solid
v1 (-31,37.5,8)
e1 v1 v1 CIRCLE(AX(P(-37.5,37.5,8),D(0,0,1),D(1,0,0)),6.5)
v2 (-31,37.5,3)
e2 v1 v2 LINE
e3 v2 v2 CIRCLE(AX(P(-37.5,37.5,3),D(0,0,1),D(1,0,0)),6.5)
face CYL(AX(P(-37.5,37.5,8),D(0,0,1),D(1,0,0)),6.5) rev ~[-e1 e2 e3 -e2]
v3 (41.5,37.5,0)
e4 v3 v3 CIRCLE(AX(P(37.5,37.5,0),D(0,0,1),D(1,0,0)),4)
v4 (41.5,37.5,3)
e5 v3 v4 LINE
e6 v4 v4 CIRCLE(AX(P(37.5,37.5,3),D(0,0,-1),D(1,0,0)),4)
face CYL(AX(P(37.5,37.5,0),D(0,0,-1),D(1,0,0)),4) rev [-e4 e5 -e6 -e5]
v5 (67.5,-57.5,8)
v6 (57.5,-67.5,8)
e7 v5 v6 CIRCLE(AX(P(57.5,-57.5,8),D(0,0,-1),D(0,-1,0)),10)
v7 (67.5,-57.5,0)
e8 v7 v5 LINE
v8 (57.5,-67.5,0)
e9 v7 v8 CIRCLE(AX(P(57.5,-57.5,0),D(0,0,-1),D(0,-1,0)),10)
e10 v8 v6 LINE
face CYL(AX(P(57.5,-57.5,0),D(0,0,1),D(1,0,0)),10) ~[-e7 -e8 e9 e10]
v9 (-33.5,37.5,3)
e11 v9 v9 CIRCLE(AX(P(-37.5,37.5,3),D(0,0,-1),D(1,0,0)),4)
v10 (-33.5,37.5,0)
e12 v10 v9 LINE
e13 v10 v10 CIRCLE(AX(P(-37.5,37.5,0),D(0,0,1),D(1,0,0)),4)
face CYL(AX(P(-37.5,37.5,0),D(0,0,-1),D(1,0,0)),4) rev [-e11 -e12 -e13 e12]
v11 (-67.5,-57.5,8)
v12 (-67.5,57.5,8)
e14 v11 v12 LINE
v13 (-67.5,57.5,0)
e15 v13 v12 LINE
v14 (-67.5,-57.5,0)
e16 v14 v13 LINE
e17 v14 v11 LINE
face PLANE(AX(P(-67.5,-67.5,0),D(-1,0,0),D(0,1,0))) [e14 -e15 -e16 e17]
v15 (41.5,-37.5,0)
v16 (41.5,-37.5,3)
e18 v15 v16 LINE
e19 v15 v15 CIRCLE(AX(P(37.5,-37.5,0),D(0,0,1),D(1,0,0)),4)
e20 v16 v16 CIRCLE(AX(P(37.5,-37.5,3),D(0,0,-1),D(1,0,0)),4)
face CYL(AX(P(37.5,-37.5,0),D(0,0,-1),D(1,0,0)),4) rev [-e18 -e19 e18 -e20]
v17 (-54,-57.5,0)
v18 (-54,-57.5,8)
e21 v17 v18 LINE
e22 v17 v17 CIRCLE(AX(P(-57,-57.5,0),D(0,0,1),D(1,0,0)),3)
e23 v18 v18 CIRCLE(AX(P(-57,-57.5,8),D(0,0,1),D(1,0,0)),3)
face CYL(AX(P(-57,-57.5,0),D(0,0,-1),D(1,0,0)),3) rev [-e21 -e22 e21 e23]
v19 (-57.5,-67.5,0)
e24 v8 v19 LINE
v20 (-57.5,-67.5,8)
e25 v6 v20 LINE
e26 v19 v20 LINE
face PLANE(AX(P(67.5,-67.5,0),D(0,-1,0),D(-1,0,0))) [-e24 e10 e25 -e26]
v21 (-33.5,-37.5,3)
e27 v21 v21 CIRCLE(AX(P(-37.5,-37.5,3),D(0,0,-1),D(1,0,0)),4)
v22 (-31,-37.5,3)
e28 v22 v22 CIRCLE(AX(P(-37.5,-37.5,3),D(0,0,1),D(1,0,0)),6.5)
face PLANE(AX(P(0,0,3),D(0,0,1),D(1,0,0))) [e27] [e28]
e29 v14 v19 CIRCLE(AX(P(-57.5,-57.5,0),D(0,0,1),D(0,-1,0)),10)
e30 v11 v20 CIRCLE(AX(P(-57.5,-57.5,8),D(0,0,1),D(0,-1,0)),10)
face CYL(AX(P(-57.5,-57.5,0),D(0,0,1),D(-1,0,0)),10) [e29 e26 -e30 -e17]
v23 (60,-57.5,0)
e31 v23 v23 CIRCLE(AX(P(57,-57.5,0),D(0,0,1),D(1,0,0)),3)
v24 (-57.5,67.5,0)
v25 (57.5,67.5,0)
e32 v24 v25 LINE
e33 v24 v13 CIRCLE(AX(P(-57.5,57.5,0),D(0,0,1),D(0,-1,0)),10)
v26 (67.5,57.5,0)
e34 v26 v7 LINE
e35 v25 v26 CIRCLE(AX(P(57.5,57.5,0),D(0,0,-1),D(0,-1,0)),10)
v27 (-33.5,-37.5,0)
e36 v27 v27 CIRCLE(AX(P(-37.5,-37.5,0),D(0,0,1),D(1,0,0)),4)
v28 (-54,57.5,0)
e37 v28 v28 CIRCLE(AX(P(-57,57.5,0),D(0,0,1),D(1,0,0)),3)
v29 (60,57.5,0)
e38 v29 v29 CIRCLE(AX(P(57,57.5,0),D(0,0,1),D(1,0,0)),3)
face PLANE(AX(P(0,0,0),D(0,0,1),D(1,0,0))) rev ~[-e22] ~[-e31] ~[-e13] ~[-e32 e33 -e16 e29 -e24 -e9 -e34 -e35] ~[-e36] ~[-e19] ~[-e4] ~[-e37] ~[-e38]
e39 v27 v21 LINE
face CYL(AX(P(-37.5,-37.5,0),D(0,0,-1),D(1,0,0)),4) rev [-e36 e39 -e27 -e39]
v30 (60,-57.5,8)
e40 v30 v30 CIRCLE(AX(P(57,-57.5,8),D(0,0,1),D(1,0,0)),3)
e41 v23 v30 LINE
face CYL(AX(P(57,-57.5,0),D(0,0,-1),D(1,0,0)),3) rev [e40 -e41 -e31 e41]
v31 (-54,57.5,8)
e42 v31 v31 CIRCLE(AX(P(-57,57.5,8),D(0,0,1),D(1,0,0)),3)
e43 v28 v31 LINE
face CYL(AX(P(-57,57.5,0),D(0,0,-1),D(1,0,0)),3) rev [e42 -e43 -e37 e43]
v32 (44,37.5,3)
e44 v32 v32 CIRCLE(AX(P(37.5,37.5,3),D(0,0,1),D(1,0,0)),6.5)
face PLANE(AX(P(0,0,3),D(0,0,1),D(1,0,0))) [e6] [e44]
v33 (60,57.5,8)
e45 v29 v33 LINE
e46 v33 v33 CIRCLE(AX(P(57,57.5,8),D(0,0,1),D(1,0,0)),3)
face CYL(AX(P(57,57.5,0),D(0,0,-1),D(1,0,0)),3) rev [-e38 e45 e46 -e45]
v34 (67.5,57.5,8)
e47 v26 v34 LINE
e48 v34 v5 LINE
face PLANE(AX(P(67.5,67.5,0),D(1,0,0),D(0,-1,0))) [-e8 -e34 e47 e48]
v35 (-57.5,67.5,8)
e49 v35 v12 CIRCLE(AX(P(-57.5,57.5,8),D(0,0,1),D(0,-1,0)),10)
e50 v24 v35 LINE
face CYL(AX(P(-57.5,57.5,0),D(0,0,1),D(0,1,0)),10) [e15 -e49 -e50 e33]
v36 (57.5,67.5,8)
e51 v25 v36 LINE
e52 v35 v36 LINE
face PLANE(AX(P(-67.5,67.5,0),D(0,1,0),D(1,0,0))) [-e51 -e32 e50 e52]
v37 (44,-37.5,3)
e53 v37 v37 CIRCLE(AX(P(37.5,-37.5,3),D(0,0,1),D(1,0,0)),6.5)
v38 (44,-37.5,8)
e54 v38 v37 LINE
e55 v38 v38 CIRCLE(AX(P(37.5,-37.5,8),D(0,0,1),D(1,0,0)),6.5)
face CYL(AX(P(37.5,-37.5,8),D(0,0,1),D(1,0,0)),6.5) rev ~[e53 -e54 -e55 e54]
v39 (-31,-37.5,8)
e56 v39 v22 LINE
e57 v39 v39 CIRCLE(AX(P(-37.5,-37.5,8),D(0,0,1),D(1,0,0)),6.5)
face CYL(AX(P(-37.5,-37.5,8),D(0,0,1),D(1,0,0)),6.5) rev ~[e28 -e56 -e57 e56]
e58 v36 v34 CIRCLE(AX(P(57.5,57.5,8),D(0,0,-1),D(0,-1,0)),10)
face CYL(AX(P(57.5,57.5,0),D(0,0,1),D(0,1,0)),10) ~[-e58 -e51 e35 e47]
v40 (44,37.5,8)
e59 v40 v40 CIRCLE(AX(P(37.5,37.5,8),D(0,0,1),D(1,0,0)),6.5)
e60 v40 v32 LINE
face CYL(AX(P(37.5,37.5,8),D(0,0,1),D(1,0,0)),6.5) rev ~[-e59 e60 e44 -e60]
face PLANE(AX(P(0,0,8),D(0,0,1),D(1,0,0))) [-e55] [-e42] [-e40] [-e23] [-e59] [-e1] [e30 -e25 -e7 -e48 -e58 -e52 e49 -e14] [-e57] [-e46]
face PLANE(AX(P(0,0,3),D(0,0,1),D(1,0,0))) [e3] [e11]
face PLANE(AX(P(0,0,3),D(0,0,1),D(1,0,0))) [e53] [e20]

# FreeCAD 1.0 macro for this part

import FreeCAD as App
import Part
import Sketcher


def edges_at(feature, points):
    """Names of the edges that pass closest to the given points."""
    edges = feature.Shape.Edges
    near = lambda p: min(range(len(edges)), key=lambda i: edges[i].distToShape(Part.Vertex(*p))[0])
    return sorted({f"Edge{near(p) + 1}" for p in points})


def add_polygon(sketch, points):
    """Adds a closed chain of lines whose ends are joined by coincident constraints."""
    first, n = sketch.GeometryCount, len(points)
    for a, b in zip(points, points[1:] + points[:1]):
        sketch.addGeometry(Part.LineSegment(App.Vector(*a, 0), App.Vector(*b, 0)), False)
    for i in range(n):
        sketch.addConstraint(Sketcher.Constraint("Coincident", first + i, 2, first + (i + 1) % n, 1))

doc = App.newDocument("Part")
body = doc.addObject("PartDesign::Body", "Body")

# Sketch on XY plane
sketch1 = body.newObject("Sketcher::SketchObject", "Sketch")
sketch1.AttachmentSupport = (doc.getObject("XY_Plane"), [""])
sketch1.MapMode = "FlatFace"
add_polygon(sketch1, [(67.5, 67.5), (-67.5, 67.5), (-67.5, -67.5), (67.5, -67.5)])  # lines 0-3
sketch1.addGeometry(Part.Circle(App.Vector(-57, -57.5, 0), App.Vector(0, 0, 1), 3), False)  # 4
sketch1.addGeometry(Part.Circle(App.Vector(-37.5, -37.5, 0), App.Vector(0, 0, 1), 4), False)  # 5
sketch1.addGeometry(Part.Circle(App.Vector(57, -57.5, 0), App.Vector(0, 0, 1), 3), False)  # 6
sketch1.addGeometry(Part.Circle(App.Vector(37.5, -37.5, 0), App.Vector(0, 0, 1), 4), False)  # 7
sketch1.addGeometry(Part.Circle(App.Vector(-37.5, 37.5, 0), App.Vector(0, 0, 1), 4), False)  # 8
sketch1.addGeometry(Part.Circle(App.Vector(-57, 57.5, 0), App.Vector(0, 0, 1), 3), False)  # 9
sketch1.addGeometry(Part.Circle(App.Vector(37.5, 37.5, 0), App.Vector(0, 0, 1), 4), False)  # 10
sketch1.addGeometry(Part.Circle(App.Vector(57, 57.5, 0), App.Vector(0, 0, 1), 3), False)  # 11
sketch1.addConstraint([
    Sketcher.Constraint("Horizontal", 0),
    Sketcher.Constraint("Vertical", 1),
    Sketcher.Constraint("Horizontal", 2),
    Sketcher.Constraint("Vertical", 3),
    Sketcher.Constraint("Equal", 4, 6),
    Sketcher.Constraint("Equal", 5, 7),
    Sketcher.Constraint("Equal", 7, 8),
    Sketcher.Constraint("Equal", 6, 9),
    Sketcher.Constraint("Equal", 8, 10),
    Sketcher.Constraint("Equal", 9, 11),
    Sketcher.Constraint("Symmetric", 7, 3, 8, 3, -1, 1),
    Sketcher.Constraint("Symmetric", 6, 3, 9, 3, -1, 1),
    Sketcher.Constraint("Symmetric", 5, 3, 10, 3, -1, 1),
    Sketcher.Constraint("Symmetric", 4, 3, 11, 3, -1, 1),
    Sketcher.Constraint("Symmetric", 0, 2, 2, 2, -1, 1),
    Sketcher.Constraint("Symmetric", 4, 3, 6, 3, -2),
    Sketcher.Constraint("Symmetric", 5, 3, 7, 3, -2),
    Sketcher.Constraint("Equal", 2, 1),
    Sketcher.Constraint("Diameter", 4, 6.0),
    Sketcher.Constraint("Diameter", 5, 8.0),
    Sketcher.Constraint("DistanceX", 0, 2, 0, 1, 135.0),
    Sketcher.Constraint("DistanceX", 4, 3, 6, 3, 114.0),
    Sketcher.Constraint("DistanceY", 4, 3, 9, 3, 115.0),
    Sketcher.Constraint("DistanceX", 0, 2, 8, 3, 30.0),
    Sketcher.Constraint("DistanceY", 8, 3, 0, 2, 30.0),
])
pad1 = body.newObject("PartDesign::Pad", "Pad")
pad1.Profile = sketch1
pad1.Length = 8

# Sketch on XY plane
sketch2 = body.newObject("Sketcher::SketchObject", "Sketch001")
sketch2.AttachmentSupport = (doc.getObject("XY_Plane"), [""])
sketch2.MapMode = "FlatFace"
sketch2.AttachmentOffset = App.Placement(App.Vector(0, 0, 8), App.Rotation())
sketch2.addGeometry([
    Part.Circle(App.Vector(38, 38, 0), App.Vector(0, 0, 1), 6),
    Part.Circle(App.Vector(38, -38, 0), App.Vector(0, 0, 1), 6),
    Part.Circle(App.Vector(-38, -38, 0), App.Vector(0, 0, 1), 6),
    Part.Circle(App.Vector(-38, 38, 0), App.Vector(0, 0, 1), 6),
], False)
sketch2.addConstraint([
    Sketcher.Constraint("Equal", 0, 1),
    Sketcher.Constraint("Equal", 1, 2),
    Sketcher.Constraint("Equal", 2, 3),
    Sketcher.Constraint("Symmetric", 0, 3, 2, 3, -1, 1),
    Sketcher.Constraint("Symmetric", 1, 3, 3, 3, -1, 1),
    Sketcher.Constraint("Symmetric", 1, 3, 2, 3, -2),
    Sketcher.Constraint("Diameter", 0, 13.0),
    Sketcher.Constraint("DistanceY", 1, 3, 0, 3, 75.0),
    Sketcher.Constraint("DistanceX", 2, 3, 1, 3, 75.0),
])
pocket1 = body.newObject("PartDesign::Pocket", "Pocket")
pocket1.Profile = sketch2
pocket1.Length = 5
doc.recompute()

fillet = body.newObject("PartDesign::Fillet", "Fillet")
fillet.Base = (pocket1, edges_at(pocket1, [
    (-67.5, 67.5, 4),
    (67.5, 67.5, 4),
    (-67.5, -67.5, 4),
    (67.5, -67.5, 4),
]))
fillet.Radius = 10

doc.recompute()
